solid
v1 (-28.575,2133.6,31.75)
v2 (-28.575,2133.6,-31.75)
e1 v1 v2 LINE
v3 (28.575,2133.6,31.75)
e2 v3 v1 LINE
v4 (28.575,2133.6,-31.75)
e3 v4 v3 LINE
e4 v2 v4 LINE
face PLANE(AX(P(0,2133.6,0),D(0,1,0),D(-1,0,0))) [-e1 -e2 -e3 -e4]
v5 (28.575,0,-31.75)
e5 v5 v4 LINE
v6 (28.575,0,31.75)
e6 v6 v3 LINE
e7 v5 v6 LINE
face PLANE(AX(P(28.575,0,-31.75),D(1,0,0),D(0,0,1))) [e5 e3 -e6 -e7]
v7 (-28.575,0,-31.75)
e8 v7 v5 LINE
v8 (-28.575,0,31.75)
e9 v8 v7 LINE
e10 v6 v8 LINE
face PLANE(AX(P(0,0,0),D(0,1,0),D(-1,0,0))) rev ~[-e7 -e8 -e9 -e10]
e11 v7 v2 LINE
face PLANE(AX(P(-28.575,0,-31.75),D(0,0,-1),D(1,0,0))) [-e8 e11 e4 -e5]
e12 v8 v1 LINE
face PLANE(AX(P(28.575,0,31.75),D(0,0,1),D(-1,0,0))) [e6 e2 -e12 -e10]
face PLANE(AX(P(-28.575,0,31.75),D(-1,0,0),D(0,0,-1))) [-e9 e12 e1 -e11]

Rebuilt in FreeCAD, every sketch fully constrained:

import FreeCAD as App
import Part
import Sketcher

V = App.Vector
Q = App.Units.Quantity


def add_polygon(sketch, points):
    """Adds a closed chain of lines whose ends are joined by coincident constraints."""
    first, n = sketch.GeometryCount, len(points)
    for a, b in zip(points, points[1:] + points[:1]):
        sketch.addGeometry(Part.LineSegment(App.Vector(*a, 0), App.Vector(*b, 0)), False)
    for i in range(n):
        sketch.addConstraint(Sketcher.Constraint("Coincident", first + i, 2, first + (i + 1) % n, 1))

doc = App.newDocument("Part")
body = doc.addObject("PartDesign::Body", "Body")

# Sketch on XZ plane
sketch1 = doc.addObject("Sketcher::SketchObject", "Sketch")
body.addObject(sketch1)
sketch1.AttachmentSupport = (doc.XZ_Plane, [""])
sketch1.MapMode = "FlatFace"
add_polygon(sketch1, [(-28.575, 31.75), (28.575, 31.75), (28.575, -31.75), (-28.575, -31.75)])  # lines 0-3
sketch1.addConstraint([
    Sketcher.Constraint("Horizontal", 0),
    Sketcher.Constraint("Vertical", 1),
    Sketcher.Constraint("Horizontal", 2),
    Sketcher.Constraint("Vertical", 3),
    Sketcher.Constraint("Symmetric", 0, 2, 2, 2, -1, 1),
    Sketcher.Constraint("DistanceY", 1, 2, 1, 1, Q("2.5 in")),
    Sketcher.Constraint("DistanceX", 0, 1, 0, 2, Q("2.25 in")),
])
pad1 = doc.addObject("PartDesign::Pad", "Pad")
body.addObject(pad1)
pad1.Profile = sketch1
pad1.Length = Q("84 in")
pad1.Reversed = True

doc.recompute()
